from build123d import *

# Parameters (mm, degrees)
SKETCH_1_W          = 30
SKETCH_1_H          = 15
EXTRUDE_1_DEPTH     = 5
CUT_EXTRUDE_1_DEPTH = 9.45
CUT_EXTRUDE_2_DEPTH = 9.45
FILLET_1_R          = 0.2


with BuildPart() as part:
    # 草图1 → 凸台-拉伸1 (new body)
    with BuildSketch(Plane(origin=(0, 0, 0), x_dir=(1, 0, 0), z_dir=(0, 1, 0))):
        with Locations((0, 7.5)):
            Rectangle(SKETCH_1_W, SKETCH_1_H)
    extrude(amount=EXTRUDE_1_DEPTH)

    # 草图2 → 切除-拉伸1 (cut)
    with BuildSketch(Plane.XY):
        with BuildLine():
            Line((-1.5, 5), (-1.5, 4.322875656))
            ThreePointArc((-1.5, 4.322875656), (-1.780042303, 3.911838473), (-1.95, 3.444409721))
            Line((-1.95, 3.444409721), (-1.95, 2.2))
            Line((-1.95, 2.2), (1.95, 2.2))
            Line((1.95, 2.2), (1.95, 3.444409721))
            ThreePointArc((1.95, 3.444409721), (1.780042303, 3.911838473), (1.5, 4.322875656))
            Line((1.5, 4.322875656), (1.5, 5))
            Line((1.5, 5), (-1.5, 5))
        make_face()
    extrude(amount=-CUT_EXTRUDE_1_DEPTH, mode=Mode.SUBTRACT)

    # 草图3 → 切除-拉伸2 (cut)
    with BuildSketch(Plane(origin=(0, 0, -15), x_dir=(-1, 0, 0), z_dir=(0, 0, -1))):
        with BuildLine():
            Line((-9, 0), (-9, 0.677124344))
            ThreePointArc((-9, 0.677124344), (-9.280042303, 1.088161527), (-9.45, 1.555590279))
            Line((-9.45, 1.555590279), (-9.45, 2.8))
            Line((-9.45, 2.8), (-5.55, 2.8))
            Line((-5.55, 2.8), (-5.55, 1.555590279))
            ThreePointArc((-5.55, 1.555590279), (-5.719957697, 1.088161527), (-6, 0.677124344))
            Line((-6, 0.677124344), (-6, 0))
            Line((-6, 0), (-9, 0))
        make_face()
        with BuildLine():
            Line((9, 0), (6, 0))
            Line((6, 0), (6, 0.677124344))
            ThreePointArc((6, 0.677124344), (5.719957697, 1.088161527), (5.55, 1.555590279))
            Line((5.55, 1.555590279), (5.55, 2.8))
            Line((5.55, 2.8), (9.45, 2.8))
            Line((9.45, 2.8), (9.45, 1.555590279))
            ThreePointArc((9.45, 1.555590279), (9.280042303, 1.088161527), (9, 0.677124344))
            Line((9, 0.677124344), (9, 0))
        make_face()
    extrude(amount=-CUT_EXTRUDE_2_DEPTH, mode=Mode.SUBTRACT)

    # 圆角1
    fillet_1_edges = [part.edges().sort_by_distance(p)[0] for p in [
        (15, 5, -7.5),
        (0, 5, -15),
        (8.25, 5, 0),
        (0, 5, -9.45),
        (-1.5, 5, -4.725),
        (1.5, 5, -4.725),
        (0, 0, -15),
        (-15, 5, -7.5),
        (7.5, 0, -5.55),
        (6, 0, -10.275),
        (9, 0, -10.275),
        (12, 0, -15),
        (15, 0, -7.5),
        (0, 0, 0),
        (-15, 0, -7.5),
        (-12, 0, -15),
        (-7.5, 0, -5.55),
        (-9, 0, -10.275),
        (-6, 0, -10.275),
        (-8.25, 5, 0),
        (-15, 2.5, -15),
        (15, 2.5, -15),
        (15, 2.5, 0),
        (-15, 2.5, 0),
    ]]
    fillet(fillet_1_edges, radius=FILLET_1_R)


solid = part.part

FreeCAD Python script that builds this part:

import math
import FreeCAD as App
import Part
import Sketcher

V = App.Vector


def edges_at(feature, points):
    """Names of the edges that pass closest to the given points."""
    edges = feature.Shape.Edges
    near = lambda p: min(range(len(edges)), key=lambda i: edges[i].distToShape(Part.Vertex(*p))[0])
    return sorted({f"Edge{near(p) + 1}" for p in points})

doc = App.newDocument("Part")
params = doc.addObject("Spreadsheet::Sheet", "Params")
for row, (alias, value) in enumerate([
    ("sketch1_width", "30 mm"),
    ("sketch1_height", "15 mm"),
    ("pad1_length", "5 mm"),
    ("sketch2_radius", "2 mm"),
    ("sketch2_width", "3 mm"),
    ("sketch2_width2", "3.9 mm"),
    ("pocket1_length", "9.45 mm"),
    ("sketch3_radius", "2 mm"),
    ("sketch3_width", "3 mm"),
    ("sketch3_width2", "3.9 mm"),
    ("pocket2_length", "9.45 mm"),
    ("fillet_radius", "0.2 mm"),
], start=1):
    params.set(f"A{row}", alias)
    params.set(f"B{row}", "=" + value)
    params.setAlias(f"B{row}", alias)

body = doc.addObject("PartDesign::Body", "Body")

# Sketch on XZ plane
sketch1 = body.newObject("Sketcher::SketchObject", "Sketch")
sketch1.AttachmentSupport = (doc.getObject("XZ_Plane"), [""])
sketch1.MapMode = "FlatFace"
sketch1.addGeometry(Part.LineSegment(V(-15, -15, 0), V(-15, 0, 0)), False)
sketch1.addGeometry(Part.LineSegment(V(-15, 0, 0), V(15, 0, 0)), False)
sketch1.addGeometry(Part.LineSegment(V(15, 0, 0), V(15, -15, 0)), False)
sketch1.addGeometry(Part.LineSegment(V(15, -15, 0), V(-15, -15, 0)), False)
sketch1.addConstraint(Sketcher.Constraint("Coincident", 0, 2, 1, 1))
sketch1.addConstraint(Sketcher.Constraint("Coincident", 1, 2, 2, 1))
sketch1.addConstraint(Sketcher.Constraint("Coincident", 2, 2, 3, 1))
sketch1.addConstraint(Sketcher.Constraint("Coincident", 3, 2, 0, 1))
sketch1.addConstraint(Sketcher.Constraint("Vertical", 0))
sketch1.addConstraint(Sketcher.Constraint("Horizontal", 1))
sketch1.addConstraint(Sketcher.Constraint("Vertical", 2))
sketch1.addConstraint(Sketcher.Constraint("Horizontal", 3))
sketch1.addConstraint(Sketcher.Constraint("Symmetric", 0, 2, 1, 2, -1, 1))
sketch1.addConstraint(Sketcher.Constraint("DistanceX", 1, 1, 1, 2, 30.0))
sketch1.addConstraint(Sketcher.Constraint("DistanceY", 0, 1, 0, 2, 15.0))
sketch1.setExpression("Constraints[9]", "Params.sketch1_width")
sketch1.setExpression("Constraints[10]", "Params.sketch1_height")
pad1 = body.newObject("PartDesign::Pad", "Pad")
pad1.Profile = sketch1
pad1.setExpression("Length", "Params.pad1_length")
pad1.Reversed = True

# Sketch on XY plane
sketch2 = body.newObject("Sketcher::SketchObject", "Sketch001")
sketch2.AttachmentSupport = (doc.getObject("XY_Plane"), [""])
sketch2.MapMode = "FlatFace"
sketch2.addGeometry(Part.LineSegment(V(-1.5, 5, 0), V(-1.5, 4.322876, 0)), False)
sketch2.addGeometry(Part.ArcOfCircle(Part.Circle(V(0, 3, 0), V(0, 0, 1), 2), math.radians(138.590378), math.radians(167.161432)), False)
sketch2.addGeometry(Part.LineSegment(V(-1.95, 3.44441, 0), V(-1.95, 2.2, 0)), False)
sketch2.addGeometry(Part.LineSegment(V(-1.95, 2.2, 0), V(1.95, 2.2, 0)), False)
sketch2.addGeometry(Part.LineSegment(V(1.95, 2.2, 0), V(1.95, 3.44441, 0)), False)
sketch2.addGeometry(Part.ArcOfCircle(Part.Circle(V(0, 3, 0), V(0, 0, 1), 2), math.radians(12.838568), math.radians(41.409622)), False)
sketch2.addGeometry(Part.LineSegment(V(1.5, 4.322876, 0), V(1.5, 5, 0)), False)
sketch2.addGeometry(Part.LineSegment(V(1.5, 5, 0), V(-1.5, 5, 0)), False)
sketch2.addConstraint(Sketcher.Constraint("Coincident", 0, 2, 1, 1))
sketch2.addConstraint(Sketcher.Constraint("Coincident", 1, 2, 2, 1))
sketch2.addConstraint(Sketcher.Constraint("Coincident", 2, 2, 3, 1))
sketch2.addConstraint(Sketcher.Constraint("Coincident", 3, 2, 4, 1))
sketch2.addConstraint(Sketcher.Constraint("Coincident", 4, 2, 5, 1))
sketch2.addConstraint(Sketcher.Constraint("Coincident", 5, 2, 6, 1))
sketch2.addConstraint(Sketcher.Constraint("Coincident", 6, 2, 7, 1))
sketch2.addConstraint(Sketcher.Constraint("Coincident", 7, 2, 0, 1))
sketch2.addConstraint(Sketcher.Constraint("Vertical", 0))
sketch2.addConstraint(Sketcher.Constraint("Vertical", 2))
sketch2.addConstraint(Sketcher.Constraint("Horizontal", 3))
sketch2.addConstraint(Sketcher.Constraint("Vertical", 4))
sketch2.addConstraint(Sketcher.Constraint("Vertical", 6))
sketch2.addConstraint(Sketcher.Constraint("Horizontal", 7))
sketch2.addConstraint(Sketcher.Constraint("Coincident", 5, 3, 1, 3))
sketch2.addConstraint(Sketcher.Constraint("Equal", 1, 5))
sketch2.addConstraint(Sketcher.Constraint("Symmetric", 1, 2, 4, 2, -2))
sketch2.addConstraint(Sketcher.Constraint("Horizontal", 0, 2, 5, 2))
sketch2.addConstraint(Sketcher.Constraint("Radius", 1, 2.0))
sketch2.addConstraint(Sketcher.Constraint("DistanceX", 7, 2, 7, 1, 3.0))
sketch2.addConstraint(Sketcher.Constraint("DistanceX", 3, 1, 3, 2, 3.9))
sketch2.addConstraint(Sketcher.Constraint("DistanceY", -1, 1, 1, 3, 3.0))
sketch2.addConstraint(Sketcher.Constraint("DistanceY", -1, 1, 6, 2, 5.0))
sketch2.addConstraint(Sketcher.Constraint("DistanceY", -1, 1, 2, 2, 2.2))
sketch2.setExpression("Constraints[18]", "Params.sketch2_radius")
sketch2.setExpression("Constraints[19]", "Params.sketch2_width")
sketch2.setExpression("Constraints[20]", "Params.sketch2_width2")
pocket1 = body.newObject("PartDesign::Pocket", "Pocket")
pocket1.Profile = sketch2
pocket1.setExpression("Length", "Params.pocket1_length")

# Sketch on XY plane
sketch3 = body.newObject("Sketcher::SketchObject", "Sketch002")
sketch3.AttachmentSupport = (doc.getObject("XY_Plane"), [""])
sketch3.MapMode = "FlatFace"
sketch3.AttachmentOffset = App.Placement(V(0, 0, -15), App.Rotation())
sketch3.addGeometry(Part.LineSegment(V(9, 0.677124, 0), V(9, 0, 0)), False)
sketch3.addGeometry(Part.LineSegment(V(9, 0, 0), V(6, 0, 0)), False)
sketch3.addGeometry(Part.LineSegment(V(6, 0, 0), V(6, 0.677124, 0)), False)
sketch3.addGeometry(Part.ArcOfCircle(Part.Circle(V(7.5, 2, 0), V(0, 0, 1), 2), math.radians(-167.161432), math.radians(-138.590378)), False)
sketch3.addGeometry(Part.LineSegment(V(5.55, 1.55559, 0), V(5.55, 2.8, 0)), False)
sketch3.addGeometry(Part.LineSegment(V(5.55, 2.8, 0), V(9.45, 2.8, 0)), False)
sketch3.addGeometry(Part.LineSegment(V(9.45, 2.8, 0), V(9.45, 1.55559, 0)), False)
sketch3.addGeometry(Part.ArcOfCircle(Part.Circle(V(7.5, 2, 0), V(0, 0, 1), 2), math.radians(-41.409622), math.radians(-12.838568)), False)
sketch3.addGeometry(Part.LineSegment(V(-6, 0, 0), V(-9, 0, 0)), False)
sketch3.addGeometry(Part.LineSegment(V(-9, 0, 0), V(-9, 0.677124, 0)), False)
sketch3.addGeometry(Part.ArcOfCircle(Part.Circle(V(-7.5, 2, 0), V(0, 0, 1), 2), math.radians(-167.161432), math.radians(-138.590378)), False)
sketch3.addGeometry(Part.LineSegment(V(-9.45, 1.55559, 0), V(-9.45, 2.8, 0)), False)
sketch3.addGeometry(Part.LineSegment(V(-9.45, 2.8, 0), V(-5.55, 2.8, 0)), False)
sketch3.addGeometry(Part.LineSegment(V(-5.55, 2.8, 0), V(-5.55, 1.55559, 0)), False)
sketch3.addGeometry(Part.ArcOfCircle(Part.Circle(V(-7.5, 2, 0), V(0, 0, 1), 2), math.radians(-41.409622), math.radians(-12.838568)), False)
sketch3.addGeometry(Part.LineSegment(V(-6, 0.677124, 0), V(-6, 0, 0)), False)
sketch3.addConstraint(Sketcher.Constraint("Coincident", 0, 2, 1, 1))
sketch3.addConstraint(Sketcher.Constraint("Coincident", 1, 2, 2, 1))
sketch3.addConstraint(Sketcher.Constraint("Coincident", 2, 2, 3, 2))
sketch3.addConstraint(Sketcher.Constraint("Coincident", 3, 1, 4, 1))
sketch3.addConstraint(Sketcher.Constraint("Coincident", 4, 2, 5, 1))
sketch3.addConstraint(Sketcher.Constraint("Coincident", 5, 2, 6, 1))
sketch3.addConstraint(Sketcher.Constraint("Coincident", 6, 2, 7, 2))
sketch3.addConstraint(Sketcher.Constraint("Coincident", 7, 1, 0, 1))
sketch3.addConstraint(Sketcher.Constraint("Coincident", 8, 2, 9, 1))
sketch3.addConstraint(Sketcher.Constraint("Coincident", 9, 2, 10, 2))
sketch3.addConstraint(Sketcher.Constraint("Coincident", 10, 1, 11, 1))
sketch3.addConstraint(Sketcher.Constraint("Coincident", 11, 2, 12, 1))
sketch3.addConstraint(Sketcher.Constraint("Coincident", 12, 2, 13, 1))
sketch3.addConstraint(Sketcher.Constraint("Coincident", 13, 2, 14, 2))
sketch3.addConstraint(Sketcher.Constraint("Coincident", 14, 1, 15, 1))
sketch3.addConstraint(Sketcher.Constraint("Coincident", 15, 2, 8, 1))
sketch3.addConstraint(Sketcher.Constraint("Vertical", 0))
sketch3.addConstraint(Sketcher.Constraint("Horizontal", 1))
sketch3.addConstraint(Sketcher.Constraint("Vertical", 2))
sketch3.addConstraint(Sketcher.Constraint("Vertical", 4))
sketch3.addConstraint(Sketcher.Constraint("Horizontal", 5))
sketch3.addConstraint(Sketcher.Constraint("Vertical", 6))
sketch3.addConstraint(Sketcher.Constraint("Horizontal", 8))
sketch3.addConstraint(Sketcher.Constraint("Vertical", 9))
sketch3.addConstraint(Sketcher.Constraint("Vertical", 11))
sketch3.addConstraint(Sketcher.Constraint("Horizontal", 12))
sketch3.addConstraint(Sketcher.Constraint("Vertical", 13))
sketch3.addConstraint(Sketcher.Constraint("Vertical", 15))
sketch3.addConstraint(Sketcher.Constraint("Coincident", 7, 3, 3, 3))
sketch3.addConstraint(Sketcher.Constraint("Coincident", 14, 3, 10, 3))
sketch3.addConstraint(Sketcher.Constraint("Equal", 3, 7))
sketch3.addConstraint(Sketcher.Constraint("Equal", 7, 10))
sketch3.addConstraint(Sketcher.Constraint("Equal", 10, 14))
sketch3.addConstraint(Sketcher.Constraint("Symmetric", 0, 2, 8, 2, -1, 1))
sketch3.addConstraint(Sketcher.Constraint("Symmetric", 3, 3, 10, 3, -2))
sketch3.addConstraint(Sketcher.Constraint("Symmetric", 5, 2, 11, 2, -2))
sketch3.addConstraint(Sketcher.Constraint("Symmetric", 1, 2, 15, 2, -2))
sketch3.addConstraint(Sketcher.Constraint("Horizontal", 3, 1, 6, 2))
sketch3.addConstraint(Sketcher.Constraint("Horizontal", 2, 2, 7, 1))
sketch3.addConstraint(Sketcher.Constraint("Horizontal", 10, 1, 13, 2))
sketch3.addConstraint(Sketcher.Constraint("Radius", 3, 2.0))
sketch3.addConstraint(Sketcher.Constraint("DistanceX", 1, 2, 1, 1, 3.0))
sketch3.addConstraint(Sketcher.Constraint("DistanceX", 5, 1, 5, 2, 3.9))
sketch3.addConstraint(Sketcher.Constraint("DistanceY", -1, 1, 3, 3, 2.0))
sketch3.addConstraint(Sketcher.Constraint("DistanceX", -1, 1, 0, 2, 9.0))
sketch3.addConstraint(Sketcher.Constraint("DistanceY", -1, 1, 4, 2, 2.8))
sketch3.setExpression("Constraints[40]", "Params.sketch3_radius")
sketch3.setExpression("Constraints[41]", "Params.sketch3_width")
sketch3.setExpression("Constraints[42]", "Params.sketch3_width2")
pocket2 = body.newObject("PartDesign::Pocket", "Pocket001")
pocket2.Profile = sketch3
pocket2.setExpression("Length", "Params.pocket2_length")
pocket2.Reversed = True
doc.recompute()

fillet = body.newObject("PartDesign::Fillet", "Fillet")
fillet.Base = (pocket2, edges_at(pocket2, [
    (15, 5, -7.5),
    (0, 5, -15),
    (8.25, 5, 0),
    (0, 5, -9.45),
    (-1.5, 5, -4.725),
    (1.5, 5, -4.725),
    (0, 0, -15),
    (-15, 5, -7.5),
    (7.5, 0, -5.55),
    (6, 0, -10.275),
    (9, 0, -10.275),
    (12, 0, -15),
    (15, 0, -7.5),
    (0, 0, 0),
    (-15, 0, -7.5),
    (-12, 0, -15),
    (-7.5, 0, -5.55),
    (-9, 0, -10.275),
    (-6, 0, -10.275),
    (-8.25, 5, 0),
    (-15, 2.5, -15),
    (15, 2.5, -15),
    (15, 2.5, 0),
    (-15, 2.5, 0),
]))
fillet.setExpression("Radius", "Params.fillet_radius")

doc.recompute()
